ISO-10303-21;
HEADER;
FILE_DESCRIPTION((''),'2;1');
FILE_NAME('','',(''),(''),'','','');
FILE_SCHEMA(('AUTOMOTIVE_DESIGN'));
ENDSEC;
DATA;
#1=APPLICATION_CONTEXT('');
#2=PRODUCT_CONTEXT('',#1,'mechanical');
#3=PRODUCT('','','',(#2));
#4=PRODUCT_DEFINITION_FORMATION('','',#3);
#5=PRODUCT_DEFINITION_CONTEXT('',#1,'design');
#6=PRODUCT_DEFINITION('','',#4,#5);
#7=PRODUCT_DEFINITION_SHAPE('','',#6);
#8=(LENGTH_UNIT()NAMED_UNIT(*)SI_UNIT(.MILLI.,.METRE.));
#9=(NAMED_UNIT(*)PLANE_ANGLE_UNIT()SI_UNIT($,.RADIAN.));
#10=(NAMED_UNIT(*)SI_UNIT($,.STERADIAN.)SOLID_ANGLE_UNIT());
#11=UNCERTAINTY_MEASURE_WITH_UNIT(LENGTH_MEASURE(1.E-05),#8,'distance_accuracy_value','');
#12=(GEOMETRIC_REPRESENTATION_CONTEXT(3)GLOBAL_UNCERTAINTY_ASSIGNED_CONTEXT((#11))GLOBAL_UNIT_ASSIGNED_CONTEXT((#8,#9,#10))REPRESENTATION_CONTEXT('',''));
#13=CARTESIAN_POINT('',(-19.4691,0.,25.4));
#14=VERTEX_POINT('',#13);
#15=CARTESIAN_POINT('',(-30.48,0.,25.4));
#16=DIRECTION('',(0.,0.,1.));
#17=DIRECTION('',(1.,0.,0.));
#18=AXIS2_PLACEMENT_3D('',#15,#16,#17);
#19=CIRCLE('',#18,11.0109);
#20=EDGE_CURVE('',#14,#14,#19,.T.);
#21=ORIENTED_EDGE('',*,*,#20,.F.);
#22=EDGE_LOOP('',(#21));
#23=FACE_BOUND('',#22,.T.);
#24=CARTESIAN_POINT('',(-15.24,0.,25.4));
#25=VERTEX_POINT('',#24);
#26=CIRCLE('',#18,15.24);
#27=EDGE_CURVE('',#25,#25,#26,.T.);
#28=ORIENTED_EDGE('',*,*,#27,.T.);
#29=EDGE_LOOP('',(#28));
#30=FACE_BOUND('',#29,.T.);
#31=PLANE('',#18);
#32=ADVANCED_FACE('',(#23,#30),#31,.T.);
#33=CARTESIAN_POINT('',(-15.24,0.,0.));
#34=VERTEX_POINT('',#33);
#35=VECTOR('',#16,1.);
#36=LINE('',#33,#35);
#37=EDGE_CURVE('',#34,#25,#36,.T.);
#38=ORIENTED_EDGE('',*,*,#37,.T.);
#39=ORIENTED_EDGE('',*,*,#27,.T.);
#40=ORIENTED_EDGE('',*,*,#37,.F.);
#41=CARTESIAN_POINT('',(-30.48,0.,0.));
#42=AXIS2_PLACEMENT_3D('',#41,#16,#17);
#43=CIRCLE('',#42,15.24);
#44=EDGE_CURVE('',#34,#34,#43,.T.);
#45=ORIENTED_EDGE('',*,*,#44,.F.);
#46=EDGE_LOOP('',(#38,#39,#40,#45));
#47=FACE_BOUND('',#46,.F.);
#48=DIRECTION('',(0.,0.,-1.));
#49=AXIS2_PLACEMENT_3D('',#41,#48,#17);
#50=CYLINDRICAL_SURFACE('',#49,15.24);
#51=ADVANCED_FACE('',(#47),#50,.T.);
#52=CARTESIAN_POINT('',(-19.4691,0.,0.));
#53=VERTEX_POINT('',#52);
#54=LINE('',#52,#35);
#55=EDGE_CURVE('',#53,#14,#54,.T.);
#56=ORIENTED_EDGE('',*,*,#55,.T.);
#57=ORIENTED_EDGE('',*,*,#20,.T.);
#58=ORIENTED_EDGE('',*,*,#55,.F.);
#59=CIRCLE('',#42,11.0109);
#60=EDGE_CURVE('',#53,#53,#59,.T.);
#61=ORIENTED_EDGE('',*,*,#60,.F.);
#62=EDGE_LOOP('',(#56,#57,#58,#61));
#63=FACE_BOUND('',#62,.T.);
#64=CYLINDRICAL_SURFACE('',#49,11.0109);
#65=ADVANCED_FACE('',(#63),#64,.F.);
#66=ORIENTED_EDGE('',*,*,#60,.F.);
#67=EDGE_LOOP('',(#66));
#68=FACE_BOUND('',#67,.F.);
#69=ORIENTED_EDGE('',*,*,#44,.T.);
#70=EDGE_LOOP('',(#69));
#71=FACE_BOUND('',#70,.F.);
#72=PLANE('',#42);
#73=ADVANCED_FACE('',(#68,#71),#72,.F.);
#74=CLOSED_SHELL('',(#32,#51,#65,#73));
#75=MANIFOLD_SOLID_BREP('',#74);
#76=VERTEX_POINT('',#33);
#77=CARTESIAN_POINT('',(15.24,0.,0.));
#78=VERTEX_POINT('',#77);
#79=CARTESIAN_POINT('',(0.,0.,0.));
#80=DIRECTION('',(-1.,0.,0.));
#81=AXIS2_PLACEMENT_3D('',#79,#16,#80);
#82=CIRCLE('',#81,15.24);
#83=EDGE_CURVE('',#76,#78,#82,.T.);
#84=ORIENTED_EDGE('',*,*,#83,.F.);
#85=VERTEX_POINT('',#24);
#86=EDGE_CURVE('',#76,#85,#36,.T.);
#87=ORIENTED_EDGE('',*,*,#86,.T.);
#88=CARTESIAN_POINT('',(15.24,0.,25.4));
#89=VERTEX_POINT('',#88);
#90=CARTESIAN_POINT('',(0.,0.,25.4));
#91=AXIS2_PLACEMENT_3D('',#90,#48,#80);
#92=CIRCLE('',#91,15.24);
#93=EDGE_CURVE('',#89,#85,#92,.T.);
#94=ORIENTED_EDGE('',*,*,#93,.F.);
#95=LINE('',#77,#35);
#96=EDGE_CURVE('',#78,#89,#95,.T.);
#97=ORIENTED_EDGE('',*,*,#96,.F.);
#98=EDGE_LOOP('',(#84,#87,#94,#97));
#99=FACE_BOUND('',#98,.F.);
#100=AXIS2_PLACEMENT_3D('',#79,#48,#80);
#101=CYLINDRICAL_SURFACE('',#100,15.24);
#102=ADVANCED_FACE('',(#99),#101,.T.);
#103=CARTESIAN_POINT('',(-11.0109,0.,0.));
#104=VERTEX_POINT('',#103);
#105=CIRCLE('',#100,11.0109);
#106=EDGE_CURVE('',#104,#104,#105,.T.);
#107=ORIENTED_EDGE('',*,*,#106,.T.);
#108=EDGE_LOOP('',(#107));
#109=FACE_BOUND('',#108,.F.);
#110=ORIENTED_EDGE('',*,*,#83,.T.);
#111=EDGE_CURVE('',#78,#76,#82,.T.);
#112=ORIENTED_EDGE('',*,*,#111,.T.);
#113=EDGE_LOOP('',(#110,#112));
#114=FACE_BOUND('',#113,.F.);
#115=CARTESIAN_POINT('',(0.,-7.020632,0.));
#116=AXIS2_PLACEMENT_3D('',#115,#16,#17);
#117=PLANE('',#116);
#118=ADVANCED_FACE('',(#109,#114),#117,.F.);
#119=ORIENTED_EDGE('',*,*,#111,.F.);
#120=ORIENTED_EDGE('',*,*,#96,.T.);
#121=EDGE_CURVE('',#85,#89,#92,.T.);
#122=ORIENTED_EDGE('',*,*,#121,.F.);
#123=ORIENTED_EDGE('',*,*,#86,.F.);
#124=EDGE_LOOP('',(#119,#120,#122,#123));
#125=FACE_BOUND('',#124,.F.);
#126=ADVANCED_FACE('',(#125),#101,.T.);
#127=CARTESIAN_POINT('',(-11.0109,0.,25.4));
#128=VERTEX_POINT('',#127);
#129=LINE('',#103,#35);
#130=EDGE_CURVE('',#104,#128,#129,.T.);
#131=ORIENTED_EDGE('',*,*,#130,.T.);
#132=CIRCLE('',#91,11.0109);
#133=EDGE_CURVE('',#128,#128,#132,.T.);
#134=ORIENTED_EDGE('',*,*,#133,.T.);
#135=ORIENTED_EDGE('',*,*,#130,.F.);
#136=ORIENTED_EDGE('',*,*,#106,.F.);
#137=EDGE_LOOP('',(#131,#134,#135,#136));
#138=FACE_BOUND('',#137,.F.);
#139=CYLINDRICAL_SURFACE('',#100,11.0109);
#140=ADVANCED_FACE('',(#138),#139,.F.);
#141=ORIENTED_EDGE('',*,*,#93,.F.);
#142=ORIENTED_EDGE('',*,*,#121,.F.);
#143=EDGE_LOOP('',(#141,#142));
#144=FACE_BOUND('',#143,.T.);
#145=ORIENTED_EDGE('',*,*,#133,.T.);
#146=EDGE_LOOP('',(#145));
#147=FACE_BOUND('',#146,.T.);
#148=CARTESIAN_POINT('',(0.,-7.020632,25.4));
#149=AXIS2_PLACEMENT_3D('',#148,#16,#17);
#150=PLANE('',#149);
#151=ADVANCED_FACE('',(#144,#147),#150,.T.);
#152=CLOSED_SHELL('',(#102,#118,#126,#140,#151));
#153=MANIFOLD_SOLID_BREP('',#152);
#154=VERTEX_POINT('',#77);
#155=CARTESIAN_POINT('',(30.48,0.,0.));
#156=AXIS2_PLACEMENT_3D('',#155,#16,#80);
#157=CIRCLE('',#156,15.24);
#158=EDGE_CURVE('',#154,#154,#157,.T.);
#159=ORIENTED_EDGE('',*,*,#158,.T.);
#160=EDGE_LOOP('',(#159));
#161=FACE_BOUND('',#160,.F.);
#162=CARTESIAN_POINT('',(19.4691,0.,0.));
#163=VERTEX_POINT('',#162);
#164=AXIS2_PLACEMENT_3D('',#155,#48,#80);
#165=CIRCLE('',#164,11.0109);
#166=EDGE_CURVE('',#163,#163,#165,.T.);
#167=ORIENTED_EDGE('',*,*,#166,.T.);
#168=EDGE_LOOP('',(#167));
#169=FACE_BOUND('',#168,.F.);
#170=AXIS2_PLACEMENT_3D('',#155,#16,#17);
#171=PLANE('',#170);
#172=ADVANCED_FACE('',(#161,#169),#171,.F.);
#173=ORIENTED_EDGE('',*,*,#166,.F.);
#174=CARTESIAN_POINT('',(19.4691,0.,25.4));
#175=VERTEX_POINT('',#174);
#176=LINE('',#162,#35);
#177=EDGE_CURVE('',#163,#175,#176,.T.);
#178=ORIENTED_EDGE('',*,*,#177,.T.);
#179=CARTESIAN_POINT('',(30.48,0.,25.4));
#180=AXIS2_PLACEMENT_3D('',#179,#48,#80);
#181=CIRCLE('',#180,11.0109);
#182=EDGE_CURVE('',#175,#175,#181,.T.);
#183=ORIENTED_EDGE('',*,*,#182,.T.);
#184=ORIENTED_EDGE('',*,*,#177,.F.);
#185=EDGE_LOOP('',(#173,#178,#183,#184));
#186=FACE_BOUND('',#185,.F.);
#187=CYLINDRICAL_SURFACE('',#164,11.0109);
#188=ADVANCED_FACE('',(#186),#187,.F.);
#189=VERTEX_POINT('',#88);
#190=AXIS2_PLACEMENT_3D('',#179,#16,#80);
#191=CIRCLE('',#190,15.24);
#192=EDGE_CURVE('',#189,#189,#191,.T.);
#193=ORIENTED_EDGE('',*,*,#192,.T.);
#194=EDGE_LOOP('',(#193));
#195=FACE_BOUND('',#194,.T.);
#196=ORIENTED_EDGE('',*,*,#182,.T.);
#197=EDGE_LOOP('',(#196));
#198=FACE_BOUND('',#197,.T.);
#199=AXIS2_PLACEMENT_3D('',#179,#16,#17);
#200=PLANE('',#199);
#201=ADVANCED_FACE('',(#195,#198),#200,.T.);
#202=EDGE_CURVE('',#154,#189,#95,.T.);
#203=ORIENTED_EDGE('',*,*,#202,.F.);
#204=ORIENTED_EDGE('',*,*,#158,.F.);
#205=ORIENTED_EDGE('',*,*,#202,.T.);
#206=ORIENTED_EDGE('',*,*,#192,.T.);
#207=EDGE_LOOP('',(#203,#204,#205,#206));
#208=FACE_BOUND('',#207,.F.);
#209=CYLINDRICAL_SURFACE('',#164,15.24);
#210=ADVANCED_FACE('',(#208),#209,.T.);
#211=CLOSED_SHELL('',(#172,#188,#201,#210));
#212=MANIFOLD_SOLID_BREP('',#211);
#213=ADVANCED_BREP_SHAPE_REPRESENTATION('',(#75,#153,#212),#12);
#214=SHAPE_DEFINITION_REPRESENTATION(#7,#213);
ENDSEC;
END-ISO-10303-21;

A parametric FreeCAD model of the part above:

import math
import FreeCAD as App
import Part
import Sketcher
from FreeCAD import Vector
Q = App.Units.Quantity

doc = App.newDocument("Part")
body = doc.addObject("PartDesign::Body", "Body")
body.AllowCompound = True

# Sketch on XY plane
sketch1 = body.newObject("Sketcher::SketchObject", "Sketch")
sketch1.AttachmentSupport = (doc.getObject("XY_Plane"), [""])
sketch1.MapMode = "FlatFace"
sketch1.addGeometry([
    Part.ArcOfCircle(Part.Circle(Vector(0, 0, 0), Vector(0, 0, 1), 15.24), math.radians(180), math.radians(360)),  # 0
    Part.ArcOfCircle(Part.Circle(Vector(0, 0, 0), Vector(0, 0, 1), 15.24), math.radians(0), math.radians(180)),  # 1
    Part.Circle(Vector(0, 0, 0), Vector(0, 0, 1), 11.0109),  # 2
    Part.Circle(Vector(30.48, 0, 0), Vector(0, 0, 1), 15.24),  # 3
    Part.Circle(Vector(30.48, 0, 0), Vector(0, 0, 1), 11.0109),  # 4
    Part.Circle(Vector(-30.48, 0, 0), Vector(0, 0, 1), 15.24),  # 5
    Part.Circle(Vector(-30.48, 0, 0), Vector(0, 0, 1), 11.0109),  # 6
], False)
sketch1.addConstraint([
    Sketcher.Constraint("Tangent", 0, 1, 1, 2),
    Sketcher.Constraint("Coincident", 1, 1, 0, 2),
    Sketcher.Constraint("Coincident", 0, 3, -1, 1),
    Sketcher.Constraint("Coincident", 2, 3, -1, 1),
    Sketcher.Constraint("Coincident", 4, 3, 3, 3),
    Sketcher.Constraint("Coincident", 6, 3, 5, 3),
    Sketcher.Constraint("Equal", 1, 3),
    Sketcher.Constraint("Equal", 2, 4),
    Sketcher.Constraint("Equal", 3, 5),
    Sketcher.Constraint("Equal", 4, 6),
    Sketcher.Constraint("Symmetric", 3, 3, 5, 3, -1, 1),
    Sketcher.Constraint("PointOnObject", 3, 3, -1),
    Sketcher.Constraint("PointOnObject", 0, 1, -1),
    Sketcher.Constraint("PointOnObject", 1, 1, -1),
    Sketcher.Constraint("Diameter", 3, Q("1.2 in")),
    Sketcher.Constraint("Diameter", 2, Q("0.867 in")),
    Sketcher.Constraint("DistanceX", -1, 1, 3, 3, Q("1.2 in")),
])
pad1 = body.newObject("PartDesign::Pad", "Pad")
pad1.Profile = sketch1
pad1.Length = Q("1 in")

doc.recompute()
